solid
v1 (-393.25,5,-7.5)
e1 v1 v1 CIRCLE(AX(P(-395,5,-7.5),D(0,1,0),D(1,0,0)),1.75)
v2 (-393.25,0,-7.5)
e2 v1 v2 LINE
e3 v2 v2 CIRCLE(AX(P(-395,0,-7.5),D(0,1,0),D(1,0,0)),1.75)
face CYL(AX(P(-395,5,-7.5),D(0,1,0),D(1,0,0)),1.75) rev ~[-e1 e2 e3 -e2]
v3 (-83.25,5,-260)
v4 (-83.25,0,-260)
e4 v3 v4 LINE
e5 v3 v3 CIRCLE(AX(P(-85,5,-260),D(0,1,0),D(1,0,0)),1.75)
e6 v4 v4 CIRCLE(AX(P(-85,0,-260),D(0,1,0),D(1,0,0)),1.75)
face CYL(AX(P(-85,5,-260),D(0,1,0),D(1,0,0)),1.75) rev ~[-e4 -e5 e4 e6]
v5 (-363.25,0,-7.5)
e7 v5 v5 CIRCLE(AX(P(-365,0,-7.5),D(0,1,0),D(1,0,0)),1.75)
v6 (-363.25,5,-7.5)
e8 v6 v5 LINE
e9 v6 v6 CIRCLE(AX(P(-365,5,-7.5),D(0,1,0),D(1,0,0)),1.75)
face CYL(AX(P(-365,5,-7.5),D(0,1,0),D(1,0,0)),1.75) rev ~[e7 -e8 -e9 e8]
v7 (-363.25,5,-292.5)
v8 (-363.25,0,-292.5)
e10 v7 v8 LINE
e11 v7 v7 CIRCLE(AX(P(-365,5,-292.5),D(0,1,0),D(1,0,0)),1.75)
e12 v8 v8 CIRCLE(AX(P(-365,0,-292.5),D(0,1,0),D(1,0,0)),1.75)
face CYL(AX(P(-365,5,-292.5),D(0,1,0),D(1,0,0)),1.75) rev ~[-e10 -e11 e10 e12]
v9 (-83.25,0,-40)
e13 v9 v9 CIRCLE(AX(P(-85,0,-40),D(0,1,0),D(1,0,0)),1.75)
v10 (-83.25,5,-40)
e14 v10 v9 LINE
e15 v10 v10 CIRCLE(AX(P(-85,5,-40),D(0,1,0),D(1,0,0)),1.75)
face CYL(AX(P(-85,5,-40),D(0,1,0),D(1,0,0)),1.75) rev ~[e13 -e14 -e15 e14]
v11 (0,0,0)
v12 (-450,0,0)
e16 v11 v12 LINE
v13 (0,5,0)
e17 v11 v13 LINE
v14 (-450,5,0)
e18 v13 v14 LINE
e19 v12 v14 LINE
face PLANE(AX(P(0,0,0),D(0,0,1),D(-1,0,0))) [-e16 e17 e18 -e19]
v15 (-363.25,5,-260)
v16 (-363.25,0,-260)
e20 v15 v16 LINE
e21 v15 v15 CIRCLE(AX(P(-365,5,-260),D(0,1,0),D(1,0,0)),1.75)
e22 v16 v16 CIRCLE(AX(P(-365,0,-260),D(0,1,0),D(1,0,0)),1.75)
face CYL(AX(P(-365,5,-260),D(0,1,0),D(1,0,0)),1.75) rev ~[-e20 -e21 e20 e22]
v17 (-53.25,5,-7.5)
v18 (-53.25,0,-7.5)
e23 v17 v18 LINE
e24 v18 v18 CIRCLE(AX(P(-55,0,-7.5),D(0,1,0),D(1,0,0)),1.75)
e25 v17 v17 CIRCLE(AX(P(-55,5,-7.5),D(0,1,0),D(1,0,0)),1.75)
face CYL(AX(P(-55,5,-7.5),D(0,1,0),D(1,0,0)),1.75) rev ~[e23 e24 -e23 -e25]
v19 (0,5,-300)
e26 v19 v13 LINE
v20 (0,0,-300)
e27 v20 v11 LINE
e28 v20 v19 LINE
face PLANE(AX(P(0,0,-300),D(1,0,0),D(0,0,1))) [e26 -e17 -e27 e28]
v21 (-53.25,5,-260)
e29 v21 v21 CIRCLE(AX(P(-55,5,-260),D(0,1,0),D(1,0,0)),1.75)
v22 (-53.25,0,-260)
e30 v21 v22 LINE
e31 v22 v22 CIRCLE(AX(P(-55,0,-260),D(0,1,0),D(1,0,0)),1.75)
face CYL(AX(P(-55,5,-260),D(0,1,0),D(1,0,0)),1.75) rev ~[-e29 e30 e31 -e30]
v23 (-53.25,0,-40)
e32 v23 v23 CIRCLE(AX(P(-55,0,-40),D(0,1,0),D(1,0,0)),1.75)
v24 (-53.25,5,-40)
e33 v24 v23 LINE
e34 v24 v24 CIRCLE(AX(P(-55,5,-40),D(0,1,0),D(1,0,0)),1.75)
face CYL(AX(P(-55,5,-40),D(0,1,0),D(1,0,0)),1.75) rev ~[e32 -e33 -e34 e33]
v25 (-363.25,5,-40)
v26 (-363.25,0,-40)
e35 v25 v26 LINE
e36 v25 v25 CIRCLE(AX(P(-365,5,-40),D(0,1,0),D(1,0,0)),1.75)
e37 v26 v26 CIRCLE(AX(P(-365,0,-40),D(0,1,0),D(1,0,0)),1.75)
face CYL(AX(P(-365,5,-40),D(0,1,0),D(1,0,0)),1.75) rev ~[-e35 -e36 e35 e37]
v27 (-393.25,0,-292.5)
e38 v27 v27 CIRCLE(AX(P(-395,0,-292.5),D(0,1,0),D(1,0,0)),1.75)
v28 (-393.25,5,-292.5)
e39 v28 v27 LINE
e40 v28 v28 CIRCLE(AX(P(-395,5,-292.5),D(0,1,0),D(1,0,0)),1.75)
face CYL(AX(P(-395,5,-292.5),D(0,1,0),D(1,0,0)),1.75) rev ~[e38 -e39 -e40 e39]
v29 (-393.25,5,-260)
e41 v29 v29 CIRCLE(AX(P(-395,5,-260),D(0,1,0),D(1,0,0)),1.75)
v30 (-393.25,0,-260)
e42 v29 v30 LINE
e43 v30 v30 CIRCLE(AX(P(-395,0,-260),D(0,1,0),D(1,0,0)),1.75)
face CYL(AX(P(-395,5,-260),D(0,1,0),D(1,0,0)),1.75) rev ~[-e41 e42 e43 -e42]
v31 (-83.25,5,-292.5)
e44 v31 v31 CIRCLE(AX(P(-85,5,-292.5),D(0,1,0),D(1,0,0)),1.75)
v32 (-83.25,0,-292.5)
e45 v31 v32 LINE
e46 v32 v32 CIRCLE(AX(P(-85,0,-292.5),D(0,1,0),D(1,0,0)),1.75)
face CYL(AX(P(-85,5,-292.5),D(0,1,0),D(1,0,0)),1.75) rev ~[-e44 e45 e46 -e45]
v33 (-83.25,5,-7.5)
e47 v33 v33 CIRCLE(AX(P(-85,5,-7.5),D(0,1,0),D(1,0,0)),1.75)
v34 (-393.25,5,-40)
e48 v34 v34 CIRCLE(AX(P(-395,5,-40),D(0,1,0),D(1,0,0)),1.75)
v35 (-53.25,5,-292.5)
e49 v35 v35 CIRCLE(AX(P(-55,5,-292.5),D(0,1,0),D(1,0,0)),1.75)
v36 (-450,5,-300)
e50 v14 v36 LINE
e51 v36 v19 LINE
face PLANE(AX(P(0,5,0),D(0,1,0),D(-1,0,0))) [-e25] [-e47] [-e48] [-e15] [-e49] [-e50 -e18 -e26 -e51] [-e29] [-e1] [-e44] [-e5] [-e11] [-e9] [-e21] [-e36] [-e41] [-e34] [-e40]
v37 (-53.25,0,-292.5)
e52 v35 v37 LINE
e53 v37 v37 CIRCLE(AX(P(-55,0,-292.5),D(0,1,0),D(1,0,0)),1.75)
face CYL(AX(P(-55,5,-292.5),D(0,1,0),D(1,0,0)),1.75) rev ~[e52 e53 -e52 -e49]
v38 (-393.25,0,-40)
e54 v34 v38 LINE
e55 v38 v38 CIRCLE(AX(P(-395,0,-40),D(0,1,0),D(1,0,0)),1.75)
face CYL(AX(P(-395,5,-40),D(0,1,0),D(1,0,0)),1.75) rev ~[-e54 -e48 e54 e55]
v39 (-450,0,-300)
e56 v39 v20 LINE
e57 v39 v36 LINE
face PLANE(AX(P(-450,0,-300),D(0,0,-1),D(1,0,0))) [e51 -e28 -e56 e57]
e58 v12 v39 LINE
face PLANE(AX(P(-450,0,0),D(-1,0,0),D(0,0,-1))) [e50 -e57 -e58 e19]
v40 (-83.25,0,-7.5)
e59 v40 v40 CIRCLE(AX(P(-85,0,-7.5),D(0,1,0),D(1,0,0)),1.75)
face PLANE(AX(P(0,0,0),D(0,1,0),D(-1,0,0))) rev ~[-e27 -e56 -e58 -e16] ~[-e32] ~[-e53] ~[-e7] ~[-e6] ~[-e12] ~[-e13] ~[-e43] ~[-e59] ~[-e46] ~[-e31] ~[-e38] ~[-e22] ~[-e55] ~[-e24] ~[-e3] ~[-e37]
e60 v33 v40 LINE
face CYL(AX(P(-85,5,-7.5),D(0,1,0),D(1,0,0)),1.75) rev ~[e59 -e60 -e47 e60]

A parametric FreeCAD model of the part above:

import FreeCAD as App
import Part
import Sketcher

doc = App.newDocument("Part")
params = doc.addObject("Spreadsheet::Sheet", "Params")
for row, (alias, value) in enumerate([
    ("sketch1_width", "450 mm"),
    ("sketch1_height", "300 mm"),
    ("pad1_length", "5 mm"),
    ("sketch2_diameter", "3.5 mm"),
    ("pocket1_length", "310 mm"),
], start=1):
    params.set(f"A{row}", alias)
    params.set(f"B{row}", "=" + value)
    params.setAlias(f"B{row}", alias)

body = doc.addObject("PartDesign::Body", "Body")

sketch1 = body.newObject("Sketcher::SketchObject", "Sketch")
sketch1.AttachmentSupport = (doc.getObject("XZ_Plane"), [""])
sketch1.MapMode = "FlatFace"
sketch1.addGeometry(Part.LineSegment(App.Vector(-450, 0, 0), App.Vector(0, 0, 0)), False)
sketch1.addGeometry(Part.LineSegment(App.Vector(0, 0, 0), App.Vector(0, -300, 0)), False)
sketch1.addGeometry(Part.LineSegment(App.Vector(0, -300, 0), App.Vector(-450, -300, 0)), False)
sketch1.addGeometry(Part.LineSegment(App.Vector(-450, -300, 0), App.Vector(-450, 0, 0)), False)
sketch1.addConstraint(Sketcher.Constraint("Coincident", 0, 2, 1, 1))
sketch1.addConstraint(Sketcher.Constraint("Coincident", 1, 2, 2, 1))
sketch1.addConstraint(Sketcher.Constraint("Coincident", 2, 2, 3, 1))
sketch1.addConstraint(Sketcher.Constraint("Coincident", 3, 2, 0, 1))
sketch1.addConstraint(Sketcher.Constraint("Horizontal", 0))
sketch1.addConstraint(Sketcher.Constraint("Vertical", 1))
sketch1.addConstraint(Sketcher.Constraint("Horizontal", 2))
sketch1.addConstraint(Sketcher.Constraint("Vertical", 3))
sketch1.addConstraint(Sketcher.Constraint("Coincident", 0, 2, -1, 1))
sketch1.addConstraint(Sketcher.Constraint("DistanceX", 0, 1, 0, 2, 450.0))
sketch1.addConstraint(Sketcher.Constraint("DistanceY", 1, 2, 1, 1, 300.0))
sketch1.setExpression("Constraints[9]", "Params.sketch1_width")
sketch1.setExpression("Constraints[10]", "Params.sketch1_height")
pad1 = body.newObject("PartDesign::Pad", "Pad")
pad1.Profile = sketch1
pad1.setExpression("Length", "Params.pad1_length")
pad1.Reversed = True

sketch2 = body.newObject("Sketcher::SketchObject", "Sketch001")
sketch2.AttachmentSupport = (doc.getObject("XZ_Plane"), [""])
sketch2.MapMode = "FlatFace"
sketch2.AttachmentOffset = App.Placement(App.Vector(0, 0, -5), App.Rotation())
sketch2.addGeometry(Part.Circle(App.Vector(-55, -7.5, 0), App.Vector(0, 0, 1), 1.8), False)
sketch2.addGeometry(Part.Circle(App.Vector(-55, -40, 0), App.Vector(0, 0, 1), 1.8), False)
sketch2.addGeometry(Part.Circle(App.Vector(-85, -7.5, 0), App.Vector(0, 0, 1), 1.8), False)
sketch2.addGeometry(Part.Circle(App.Vector(-85, -40, 0), App.Vector(0, 0, 1), 1.8), False)
sketch2.addGeometry(Part.Circle(App.Vector(-55, -260, 0), App.Vector(0, 0, 1), 1.8), False)
sketch2.addGeometry(Part.Circle(App.Vector(-55, -292.5, 0), App.Vector(0, 0, 1), 1.8), False)
sketch2.addGeometry(Part.Circle(App.Vector(-85, -260, 0), App.Vector(0, 0, 1), 1.8), False)
sketch2.addGeometry(Part.Circle(App.Vector(-85, -292.5, 0), App.Vector(0, 0, 1), 1.8), False)
sketch2.addGeometry(Part.Circle(App.Vector(-365, -260, 0), App.Vector(0, 0, 1), 1.8), False)
sketch2.addGeometry(Part.Circle(App.Vector(-365, -292.5, 0), App.Vector(0, 0, 1), 1.8), False)
sketch2.addGeometry(Part.Circle(App.Vector(-395, -260, 0), App.Vector(0, 0, 1), 1.8), False)
sketch2.addGeometry(Part.Circle(App.Vector(-395, -292.5, 0), App.Vector(0, 0, 1), 1.8), False)
sketch2.addGeometry(Part.Circle(App.Vector(-365, -7.5, 0), App.Vector(0, 0, 1), 1.8), False)
sketch2.addGeometry(Part.Circle(App.Vector(-365, -40, 0), App.Vector(0, 0, 1), 1.8), False)
sketch2.addGeometry(Part.Circle(App.Vector(-395, -7.5, 0), App.Vector(0, 0, 1), 1.8), False)
sketch2.addGeometry(Part.Circle(App.Vector(-395, -40, 0), App.Vector(0, 0, 1), 1.8), False)
sketch2.addConstraint(Sketcher.Constraint("Equal", 0, 1))
sketch2.addConstraint(Sketcher.Constraint("Equal", 1, 2))
sketch2.addConstraint(Sketcher.Constraint("Equal", 2, 3))
sketch2.addConstraint(Sketcher.Constraint("Equal", 3, 4))
sketch2.addConstraint(Sketcher.Constraint("Equal", 4, 5))
sketch2.addConstraint(Sketcher.Constraint("Equal", 5, 6))
sketch2.addConstraint(Sketcher.Constraint("Equal", 6, 7))
sketch2.addConstraint(Sketcher.Constraint("Equal", 7, 8))
sketch2.addConstraint(Sketcher.Constraint("Equal", 8, 9))
sketch2.addConstraint(Sketcher.Constraint("Equal", 9, 10))
sketch2.addConstraint(Sketcher.Constraint("Equal", 10, 11))
sketch2.addConstraint(Sketcher.Constraint("Equal", 11, 12))
sketch2.addConstraint(Sketcher.Constraint("Equal", 12, 13))
sketch2.addConstraint(Sketcher.Constraint("Equal", 13, 14))
sketch2.addConstraint(Sketcher.Constraint("Equal", 14, 15))
sketch2.addConstraint(Sketcher.Constraint("Horizontal", 0, 3, 2, 3))
sketch2.addConstraint(Sketcher.Constraint("Horizontal", 1, 3, 3, 3))
sketch2.addConstraint(Sketcher.Constraint("Horizontal", 4, 3, 6, 3))
sketch2.addConstraint(Sketcher.Constraint("Horizontal", 5, 3, 7, 3))
sketch2.addConstraint(Sketcher.Constraint("Horizontal", 6, 3, 8, 3))
sketch2.addConstraint(Sketcher.Constraint("Horizontal", 7, 3, 9, 3))
sketch2.addConstraint(Sketcher.Constraint("Horizontal", 8, 3, 10, 3))
sketch2.addConstraint(Sketcher.Constraint("Horizontal", 9, 3, 11, 3))
sketch2.addConstraint(Sketcher.Constraint("Horizontal", 2, 3, 12, 3))
sketch2.addConstraint(Sketcher.Constraint("Horizontal", 3, 3, 13, 3))
sketch2.addConstraint(Sketcher.Constraint("Horizontal", 12, 3, 14, 3))
sketch2.addConstraint(Sketcher.Constraint("Horizontal", 13, 3, 15, 3))
sketch2.addConstraint(Sketcher.Constraint("Vertical", 0, 3, 1, 3))
sketch2.addConstraint(Sketcher.Constraint("Vertical", 2, 3, 3, 3))
sketch2.addConstraint(Sketcher.Constraint("Vertical", 1, 3, 4, 3))
sketch2.addConstraint(Sketcher.Constraint("Vertical", 4, 3, 5, 3))
sketch2.addConstraint(Sketcher.Constraint("Vertical", 3, 3, 6, 3))
sketch2.addConstraint(Sketcher.Constraint("Vertical", 6, 3, 7, 3))
sketch2.addConstraint(Sketcher.Constraint("Vertical", 8, 3, 9, 3))
sketch2.addConstraint(Sketcher.Constraint("Vertical", 10, 3, 11, 3))
sketch2.addConstraint(Sketcher.Constraint("Vertical", 9, 3, 12, 3))
sketch2.addConstraint(Sketcher.Constraint("Vertical", 12, 3, 13, 3))
sketch2.addConstraint(Sketcher.Constraint("Vertical", 11, 3, 14, 3))
sketch2.addConstraint(Sketcher.Constraint("Vertical", 14, 3, 15, 3))
sketch2.addConstraint(Sketcher.Constraint("Diameter", 0, 3.5))
sketch2.addConstraint(Sketcher.Constraint("DistanceX", 8, 3, 4, 3, 310.0))
sketch2.addConstraint(Sketcher.Constraint("DistanceX", 10, 3, 6, 3, 310.0))
sketch2.addConstraint(Sketcher.Constraint("DistanceY", 4, 3, 0, 3, 252.5))
sketch2.addConstraint(Sketcher.Constraint("DistanceY", 5, 3, 1, 3, 252.5))
sketch2.addConstraint(Sketcher.Constraint("DistanceX", 0, 3, -1, 1, 55.0))
sketch2.addConstraint(Sketcher.Constraint("DistanceY", 1, 3, -1, 1, 40.0))
sketch2.addConstraint(Sketcher.Constraint("DistanceX", 2, 3, -1, 1, 85.0))
sketch2.addConstraint(Sketcher.Constraint("DistanceY", 4, 3, -1, 1, 260.0))
sketch2.setExpression("Constraints[39]", "Params.sketch2_diameter")
pocket1 = body.newObject("PartDesign::Pocket", "Pocket")
pocket1.Profile = sketch2
pocket1.setExpression("Length", "Params.pocket1_length")
pocket1.Reversed = True

doc.recompute()
